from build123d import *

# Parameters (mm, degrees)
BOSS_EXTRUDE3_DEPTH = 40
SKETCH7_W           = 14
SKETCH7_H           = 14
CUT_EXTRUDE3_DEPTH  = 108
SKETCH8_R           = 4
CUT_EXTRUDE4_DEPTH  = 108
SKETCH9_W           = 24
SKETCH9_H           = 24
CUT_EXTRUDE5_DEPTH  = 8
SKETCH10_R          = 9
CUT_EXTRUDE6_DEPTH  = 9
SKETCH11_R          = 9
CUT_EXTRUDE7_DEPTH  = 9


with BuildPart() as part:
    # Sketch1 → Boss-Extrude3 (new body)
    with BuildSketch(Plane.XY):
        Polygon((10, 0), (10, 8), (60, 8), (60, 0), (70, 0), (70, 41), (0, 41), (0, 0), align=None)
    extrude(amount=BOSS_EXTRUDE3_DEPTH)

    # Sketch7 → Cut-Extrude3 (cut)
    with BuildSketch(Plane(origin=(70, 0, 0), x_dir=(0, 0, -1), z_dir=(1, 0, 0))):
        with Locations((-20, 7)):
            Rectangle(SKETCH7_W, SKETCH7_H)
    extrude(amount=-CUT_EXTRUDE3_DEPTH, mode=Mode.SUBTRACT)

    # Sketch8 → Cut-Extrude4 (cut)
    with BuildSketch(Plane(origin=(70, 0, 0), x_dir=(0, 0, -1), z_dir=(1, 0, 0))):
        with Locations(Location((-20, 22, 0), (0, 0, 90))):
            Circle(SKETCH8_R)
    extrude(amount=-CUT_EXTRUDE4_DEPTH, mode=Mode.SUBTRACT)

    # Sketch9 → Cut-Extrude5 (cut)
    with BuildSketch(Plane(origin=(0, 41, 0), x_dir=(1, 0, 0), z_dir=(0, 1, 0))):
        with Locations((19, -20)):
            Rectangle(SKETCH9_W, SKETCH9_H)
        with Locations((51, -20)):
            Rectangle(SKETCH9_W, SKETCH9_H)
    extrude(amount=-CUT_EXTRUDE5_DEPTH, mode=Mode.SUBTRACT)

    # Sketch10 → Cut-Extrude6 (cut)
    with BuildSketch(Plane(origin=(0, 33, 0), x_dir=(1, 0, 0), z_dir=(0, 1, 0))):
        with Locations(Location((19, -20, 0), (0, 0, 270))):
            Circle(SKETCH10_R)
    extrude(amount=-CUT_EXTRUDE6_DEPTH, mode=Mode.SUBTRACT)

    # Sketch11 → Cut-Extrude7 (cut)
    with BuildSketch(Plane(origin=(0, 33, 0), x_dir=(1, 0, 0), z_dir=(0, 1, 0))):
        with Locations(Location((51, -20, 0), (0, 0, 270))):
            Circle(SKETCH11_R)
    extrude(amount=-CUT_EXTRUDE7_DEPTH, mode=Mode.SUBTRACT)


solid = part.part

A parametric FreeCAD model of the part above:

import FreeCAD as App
import Part
import Sketcher
from FreeCAD import Vector
Q = App.Units.Quantity


def add_polygon(sketch, points):
    """Adds a closed chain of lines whose ends are joined by coincident constraints."""
    first, n = sketch.GeometryCount, len(points)
    for a, b in zip(points, points[1:] + points[:1]):
        sketch.addGeometry(Part.LineSegment(App.Vector(*a, 0), App.Vector(*b, 0)), False)
    for i in range(n):
        sketch.addConstraint(Sketcher.Constraint("Coincident", first + i, 2, first + (i + 1) % n, 1))

doc = App.newDocument("Part")
body = doc.addObject("PartDesign::Body", "Body")

# Sketch on XY plane
sketch1 = doc.addObject("Sketcher::SketchObject", "Sketch")
body.addObject(sketch1)
sketch1.AttachmentSupport = (doc.XY_Plane, [""])
sketch1.MapMode = "FlatFace"
add_polygon(sketch1, [(10, 0), (10, 8), (60, 8), (60, 0), (70, 0), (70, 41), (0, 41), (0, 0)])  # lines 0-7
sketch1.addConstraint([
    Sketcher.Constraint("Vertical", 0),
    Sketcher.Constraint("Horizontal", 1),
    Sketcher.Constraint("Vertical", 2),
    Sketcher.Constraint("Horizontal", 3),
    Sketcher.Constraint("Vertical", 4),
    Sketcher.Constraint("Horizontal", 5),
    Sketcher.Constraint("Vertical", 6),
    Sketcher.Constraint("Horizontal", 7),
    Sketcher.Constraint("Coincident", 6, 2, -1, 1),
    Sketcher.Constraint("PointOnObject", 2, 2, -1),
    Sketcher.Constraint("Equal", 3, 7),
    Sketcher.Constraint("DistanceX", 1, 1, 1, 2, Q("50 mm")),
    Sketcher.Constraint("DistanceX", 3, 1, 3, 2, Q("10 mm")),
    Sketcher.Constraint("DistanceY", 0, 1, 0, 2, Q("8 mm")),
    Sketcher.Constraint("DistanceY", 4, 1, 4, 2, Q("41 mm")),
])
pad1 = doc.addObject("PartDesign::Pad", "Pad")
body.addObject(pad1)
pad1.Profile = sketch1
pad1.Length = 40

# Sketch on YZ plane
sketch2 = doc.addObject("Sketcher::SketchObject", "Sketch001")
body.addObject(sketch2)
sketch2.AttachmentSupport = (doc.YZ_Plane, [""])
sketch2.MapMode = "FlatFace"
sketch2.AttachmentOffset = App.Placement(Vector(0, 0, 70), App.Rotation())
add_polygon(sketch2, [(14, 27), (0, 27), (0, 13), (14, 13)])  # lines 0-3
sketch2.addConstraint([
    Sketcher.Constraint("Horizontal", 0),
    Sketcher.Constraint("Vertical", 1),
    Sketcher.Constraint("Horizontal", 2),
    Sketcher.Constraint("Vertical", 3),
    Sketcher.Constraint("PointOnObject", 0, 2, -2),
    Sketcher.Constraint("Equal", 2, 1),
    Sketcher.Constraint("DistanceX", 0, 2, 0, 1, Q("14 mm")),
    Sketcher.Constraint("DistanceY", -1, 1, 0, 2, Q("27 mm")),
])
pocket1 = doc.addObject("PartDesign::Pocket", "Pocket")
body.addObject(pocket1)
pocket1.Profile = sketch2
pocket1.Length = 108

# Sketch on YZ plane
sketch3 = doc.addObject("Sketcher::SketchObject", "Sketch002")
body.addObject(sketch3)
sketch3.AttachmentSupport = (doc.YZ_Plane, [""])
sketch3.MapMode = "FlatFace"
sketch3.AttachmentOffset = App.Placement(Vector(0, 0, 70), App.Rotation())
sketch3.addGeometry(Part.Circle(Vector(22, 20, 0), Vector(0, 0, 1), 4), False)
sketch3.addConstraint([
    Sketcher.Constraint("Diameter", 0, Q("8 mm")),
    Sketcher.Constraint("DistanceX", -1, 1, 0, 3, Q("22 mm")),
    Sketcher.Constraint("DistanceY", -1, 1, 0, 3, Q("20 mm")),
])
pocket2 = doc.addObject("PartDesign::Pocket", "Pocket001")
body.addObject(pocket2)
pocket2.Profile = sketch3
pocket2.Length = 108

# Sketch on XZ plane
sketch4 = doc.addObject("Sketcher::SketchObject", "Sketch003")
body.addObject(sketch4)
sketch4.AttachmentSupport = (doc.XZ_Plane, [""])
sketch4.MapMode = "FlatFace"
sketch4.AttachmentOffset = App.Placement(Vector(0, 0, -41), App.Rotation())
add_polygon(sketch4, [(7, 8), (7, 32), (31, 32), (31, 8)])  # lines 0-3
add_polygon(sketch4, [(39, 8), (39, 32), (63, 32), (63, 8)])  # lines 4-7
sketch4.addConstraint([
    Sketcher.Constraint("Vertical", 0),
    Sketcher.Constraint("Horizontal", 1),
    Sketcher.Constraint("Vertical", 2),
    Sketcher.Constraint("Horizontal", 3),
    Sketcher.Constraint("Vertical", 4),
    Sketcher.Constraint("Horizontal", 5),
    Sketcher.Constraint("Vertical", 6),
    Sketcher.Constraint("Horizontal", 7),
    Sketcher.Constraint("Horizontal", 1, 2, 4, 2),
    Sketcher.Constraint("Horizontal", 3, 2, 6, 2),
    Sketcher.Constraint("Equal", 3, 5),
    Sketcher.Constraint("Equal", 7, 0),
    Sketcher.Constraint("DistanceX", 1, 1, 1, 2, Q("24 mm")),
    Sketcher.Constraint("DistanceX", -1, 1, 0, 2, Q("7 mm")),
    Sketcher.Constraint("DistanceY", -1, 1, 0, 2, Q("32 mm")),
    Sketcher.Constraint("DistanceX", -1, 1, 4, 2, Q("39 mm")),
])
pocket3 = doc.addObject("PartDesign::Pocket", "Pocket002")
body.addObject(pocket3)
pocket3.Profile = sketch4
pocket3.Length = 8
pocket3.Reversed = True

# Sketch on XZ plane
sketch5 = doc.addObject("Sketcher::SketchObject", "Sketch004")
body.addObject(sketch5)
sketch5.AttachmentSupport = (doc.XZ_Plane, [""])
sketch5.MapMode = "FlatFace"
sketch5.AttachmentOffset = App.Placement(Vector(0, 0, -33), App.Rotation())
sketch5.addGeometry(Part.Circle(Vector(19, 20, 0), Vector(0, 0, 1), 9), False)
sketch5.addConstraint([
    Sketcher.Constraint("Diameter", 0, Q("18 mm")),
    Sketcher.Constraint("DistanceX", -1, 1, 0, 3, Q("19 mm")),
    Sketcher.Constraint("DistanceY", -1, 1, 0, 3, Q("20 mm")),
])
pocket4 = doc.addObject("PartDesign::Pocket", "Pocket003")
body.addObject(pocket4)
pocket4.Profile = sketch5
pocket4.Length = 9
pocket4.Reversed = True

# Sketch on XZ plane
sketch6 = doc.addObject("Sketcher::SketchObject", "Sketch005")
body.addObject(sketch6)
sketch6.AttachmentSupport = (doc.XZ_Plane, [""])
sketch6.MapMode = "FlatFace"
sketch6.AttachmentOffset = App.Placement(Vector(0, 0, -33), App.Rotation())
sketch6.addGeometry(Part.Circle(Vector(51, 20, 0), Vector(0, 0, 1), 9), False)
sketch6.addConstraint([
    Sketcher.Constraint("Diameter", 0, Q("18 mm")),
    Sketcher.Constraint("DistanceX", -1, 1, 0, 3, Q("51 mm")),
    Sketcher.Constraint("DistanceY", -1, 1, 0, 3, Q("20 mm")),
])
pocket5 = doc.addObject("PartDesign::Pocket", "Pocket004")
body.addObject(pocket5)
pocket5.Profile = sketch6
pocket5.Length = 9
pocket5.Reversed = True

doc.recompute()
